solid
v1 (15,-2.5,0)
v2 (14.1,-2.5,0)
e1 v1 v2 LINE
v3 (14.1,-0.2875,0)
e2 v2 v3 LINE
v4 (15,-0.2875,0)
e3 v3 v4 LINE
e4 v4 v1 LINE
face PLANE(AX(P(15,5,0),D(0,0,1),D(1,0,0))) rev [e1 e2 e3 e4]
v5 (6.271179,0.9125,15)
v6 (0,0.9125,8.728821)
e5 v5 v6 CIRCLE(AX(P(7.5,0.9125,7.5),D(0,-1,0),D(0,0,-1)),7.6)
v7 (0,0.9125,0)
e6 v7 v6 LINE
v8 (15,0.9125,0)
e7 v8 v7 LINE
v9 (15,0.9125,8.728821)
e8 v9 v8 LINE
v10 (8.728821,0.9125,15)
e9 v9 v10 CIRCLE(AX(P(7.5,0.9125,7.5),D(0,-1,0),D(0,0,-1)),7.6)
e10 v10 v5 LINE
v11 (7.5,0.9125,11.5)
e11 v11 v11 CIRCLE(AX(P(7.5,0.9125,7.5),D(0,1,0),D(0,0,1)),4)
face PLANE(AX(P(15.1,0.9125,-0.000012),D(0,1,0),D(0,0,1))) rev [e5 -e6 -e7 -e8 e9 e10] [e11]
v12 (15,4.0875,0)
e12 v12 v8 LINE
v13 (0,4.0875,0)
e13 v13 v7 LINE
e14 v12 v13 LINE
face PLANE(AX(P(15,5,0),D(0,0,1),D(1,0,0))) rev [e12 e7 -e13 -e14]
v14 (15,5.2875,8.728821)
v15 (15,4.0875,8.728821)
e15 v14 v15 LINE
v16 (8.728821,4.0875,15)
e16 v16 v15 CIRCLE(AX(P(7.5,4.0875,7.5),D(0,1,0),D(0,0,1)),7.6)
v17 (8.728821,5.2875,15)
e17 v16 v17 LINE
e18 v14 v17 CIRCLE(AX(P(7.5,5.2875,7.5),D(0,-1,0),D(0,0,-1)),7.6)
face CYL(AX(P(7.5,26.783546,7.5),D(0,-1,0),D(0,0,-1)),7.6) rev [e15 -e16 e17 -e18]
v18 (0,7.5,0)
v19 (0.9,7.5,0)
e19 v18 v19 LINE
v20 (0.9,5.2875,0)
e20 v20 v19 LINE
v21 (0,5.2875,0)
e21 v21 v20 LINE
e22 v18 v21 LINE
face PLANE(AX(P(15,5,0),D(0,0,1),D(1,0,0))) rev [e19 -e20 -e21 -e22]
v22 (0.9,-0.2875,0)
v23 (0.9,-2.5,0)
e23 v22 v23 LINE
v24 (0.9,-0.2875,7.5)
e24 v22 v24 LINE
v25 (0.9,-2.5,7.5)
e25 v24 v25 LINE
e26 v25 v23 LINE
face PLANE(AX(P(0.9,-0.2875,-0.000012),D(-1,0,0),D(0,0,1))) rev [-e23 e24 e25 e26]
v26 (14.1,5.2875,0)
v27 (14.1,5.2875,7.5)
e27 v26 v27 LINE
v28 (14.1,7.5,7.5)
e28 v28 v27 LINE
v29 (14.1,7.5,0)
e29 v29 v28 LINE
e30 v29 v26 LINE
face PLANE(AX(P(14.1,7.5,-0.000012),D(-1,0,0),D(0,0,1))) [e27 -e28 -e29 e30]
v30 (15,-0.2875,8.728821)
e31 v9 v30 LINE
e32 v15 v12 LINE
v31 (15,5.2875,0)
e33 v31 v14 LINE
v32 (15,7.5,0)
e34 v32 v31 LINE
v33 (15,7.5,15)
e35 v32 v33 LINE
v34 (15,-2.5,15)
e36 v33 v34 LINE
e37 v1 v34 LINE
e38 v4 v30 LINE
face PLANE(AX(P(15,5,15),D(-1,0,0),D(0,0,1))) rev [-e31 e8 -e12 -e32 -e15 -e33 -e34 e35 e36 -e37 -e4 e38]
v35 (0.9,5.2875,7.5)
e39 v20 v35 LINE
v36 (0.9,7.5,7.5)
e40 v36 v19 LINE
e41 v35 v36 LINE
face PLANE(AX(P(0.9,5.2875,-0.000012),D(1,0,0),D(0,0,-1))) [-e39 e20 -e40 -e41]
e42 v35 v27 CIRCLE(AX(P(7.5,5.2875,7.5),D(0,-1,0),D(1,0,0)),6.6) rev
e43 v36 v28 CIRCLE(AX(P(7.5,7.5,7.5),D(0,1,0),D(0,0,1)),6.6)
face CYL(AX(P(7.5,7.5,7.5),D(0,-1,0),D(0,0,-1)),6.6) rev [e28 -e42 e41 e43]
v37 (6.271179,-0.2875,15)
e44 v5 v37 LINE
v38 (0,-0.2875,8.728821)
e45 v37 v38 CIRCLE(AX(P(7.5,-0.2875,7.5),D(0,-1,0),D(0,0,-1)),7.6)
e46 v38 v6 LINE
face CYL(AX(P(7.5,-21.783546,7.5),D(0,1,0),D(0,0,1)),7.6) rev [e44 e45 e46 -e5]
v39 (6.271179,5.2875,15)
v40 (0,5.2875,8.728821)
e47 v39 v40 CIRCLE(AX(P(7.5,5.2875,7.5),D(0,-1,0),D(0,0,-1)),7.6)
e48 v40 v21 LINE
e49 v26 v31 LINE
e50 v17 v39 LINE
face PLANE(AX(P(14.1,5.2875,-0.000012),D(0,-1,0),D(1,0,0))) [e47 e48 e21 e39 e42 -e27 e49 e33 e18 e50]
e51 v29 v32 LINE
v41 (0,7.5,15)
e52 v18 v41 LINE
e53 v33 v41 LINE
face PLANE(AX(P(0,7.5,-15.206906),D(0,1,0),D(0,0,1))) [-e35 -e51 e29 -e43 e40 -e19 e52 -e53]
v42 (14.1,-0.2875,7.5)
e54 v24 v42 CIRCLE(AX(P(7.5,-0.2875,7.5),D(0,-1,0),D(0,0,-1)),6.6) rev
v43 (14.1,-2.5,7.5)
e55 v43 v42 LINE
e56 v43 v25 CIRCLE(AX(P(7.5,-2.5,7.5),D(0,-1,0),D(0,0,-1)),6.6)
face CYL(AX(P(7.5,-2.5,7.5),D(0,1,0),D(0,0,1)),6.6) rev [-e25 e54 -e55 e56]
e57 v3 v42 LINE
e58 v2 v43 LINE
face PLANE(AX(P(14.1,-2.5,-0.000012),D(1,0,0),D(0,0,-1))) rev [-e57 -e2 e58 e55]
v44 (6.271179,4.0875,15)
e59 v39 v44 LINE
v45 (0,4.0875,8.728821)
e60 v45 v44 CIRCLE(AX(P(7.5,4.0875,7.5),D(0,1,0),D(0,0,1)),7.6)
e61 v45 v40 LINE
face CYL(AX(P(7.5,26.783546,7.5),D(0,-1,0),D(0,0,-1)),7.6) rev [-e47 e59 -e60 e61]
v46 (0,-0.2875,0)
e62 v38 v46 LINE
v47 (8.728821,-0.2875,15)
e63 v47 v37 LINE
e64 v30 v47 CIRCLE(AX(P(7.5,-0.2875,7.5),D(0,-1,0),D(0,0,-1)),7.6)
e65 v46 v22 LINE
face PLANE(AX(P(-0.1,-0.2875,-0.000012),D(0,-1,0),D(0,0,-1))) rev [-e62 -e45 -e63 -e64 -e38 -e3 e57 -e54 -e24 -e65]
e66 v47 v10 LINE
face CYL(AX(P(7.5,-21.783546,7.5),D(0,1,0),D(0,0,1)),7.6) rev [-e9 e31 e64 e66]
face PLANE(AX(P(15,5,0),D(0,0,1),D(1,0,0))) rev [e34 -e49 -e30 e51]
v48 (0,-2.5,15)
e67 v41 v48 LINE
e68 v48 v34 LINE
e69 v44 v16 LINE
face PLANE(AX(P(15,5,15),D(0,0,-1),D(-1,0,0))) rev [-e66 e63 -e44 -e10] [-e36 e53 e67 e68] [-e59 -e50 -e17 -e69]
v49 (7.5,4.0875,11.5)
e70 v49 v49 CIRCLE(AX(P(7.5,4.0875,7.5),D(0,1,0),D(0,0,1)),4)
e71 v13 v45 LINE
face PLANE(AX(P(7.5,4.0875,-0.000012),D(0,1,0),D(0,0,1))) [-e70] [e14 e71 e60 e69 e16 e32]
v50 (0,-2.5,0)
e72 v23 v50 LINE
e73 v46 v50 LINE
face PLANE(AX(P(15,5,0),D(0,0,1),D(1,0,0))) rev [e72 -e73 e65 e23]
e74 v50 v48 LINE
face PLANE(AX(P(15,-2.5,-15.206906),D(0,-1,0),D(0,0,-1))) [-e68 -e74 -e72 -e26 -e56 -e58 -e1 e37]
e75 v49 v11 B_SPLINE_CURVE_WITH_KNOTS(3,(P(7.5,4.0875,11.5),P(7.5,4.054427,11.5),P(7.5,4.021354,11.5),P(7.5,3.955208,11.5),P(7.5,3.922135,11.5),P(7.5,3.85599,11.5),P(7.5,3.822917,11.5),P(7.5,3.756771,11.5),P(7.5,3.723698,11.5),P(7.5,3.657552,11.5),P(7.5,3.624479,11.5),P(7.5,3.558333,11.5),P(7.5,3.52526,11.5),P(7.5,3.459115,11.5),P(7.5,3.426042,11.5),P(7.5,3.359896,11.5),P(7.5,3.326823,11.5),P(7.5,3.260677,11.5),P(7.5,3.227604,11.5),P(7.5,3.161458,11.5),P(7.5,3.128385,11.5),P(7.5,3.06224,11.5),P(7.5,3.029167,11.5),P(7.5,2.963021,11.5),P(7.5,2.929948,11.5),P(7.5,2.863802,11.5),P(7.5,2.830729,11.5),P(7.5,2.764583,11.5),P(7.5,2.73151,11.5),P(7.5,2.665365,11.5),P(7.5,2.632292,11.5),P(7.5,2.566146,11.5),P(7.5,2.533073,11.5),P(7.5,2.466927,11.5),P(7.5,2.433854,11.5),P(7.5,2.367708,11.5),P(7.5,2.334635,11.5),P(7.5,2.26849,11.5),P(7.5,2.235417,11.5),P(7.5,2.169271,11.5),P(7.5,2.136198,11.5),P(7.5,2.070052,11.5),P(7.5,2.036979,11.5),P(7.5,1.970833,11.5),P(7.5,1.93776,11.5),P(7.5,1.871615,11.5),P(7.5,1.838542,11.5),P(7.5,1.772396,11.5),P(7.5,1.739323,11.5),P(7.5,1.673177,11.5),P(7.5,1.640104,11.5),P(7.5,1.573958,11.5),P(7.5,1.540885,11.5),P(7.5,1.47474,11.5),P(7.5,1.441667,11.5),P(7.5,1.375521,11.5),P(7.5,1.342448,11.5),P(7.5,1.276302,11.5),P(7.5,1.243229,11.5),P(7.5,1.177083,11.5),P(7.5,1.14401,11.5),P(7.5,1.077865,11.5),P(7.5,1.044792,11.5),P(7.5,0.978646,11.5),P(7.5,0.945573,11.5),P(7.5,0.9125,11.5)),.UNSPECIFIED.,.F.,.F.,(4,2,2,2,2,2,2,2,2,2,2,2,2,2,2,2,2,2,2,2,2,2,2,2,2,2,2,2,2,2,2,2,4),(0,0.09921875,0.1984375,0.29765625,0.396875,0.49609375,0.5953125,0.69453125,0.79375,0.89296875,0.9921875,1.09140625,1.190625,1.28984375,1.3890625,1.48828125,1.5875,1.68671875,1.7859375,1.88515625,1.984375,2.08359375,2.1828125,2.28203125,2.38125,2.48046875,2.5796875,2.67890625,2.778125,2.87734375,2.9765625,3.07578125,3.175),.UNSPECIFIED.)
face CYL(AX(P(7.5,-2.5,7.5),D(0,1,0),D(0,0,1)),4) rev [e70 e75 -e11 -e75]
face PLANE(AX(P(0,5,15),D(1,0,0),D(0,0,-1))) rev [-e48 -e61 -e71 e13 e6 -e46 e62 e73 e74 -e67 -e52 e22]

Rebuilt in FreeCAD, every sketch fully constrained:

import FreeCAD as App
import Part
import Sketcher
from FreeCAD import Vector


def add_polygon(sketch, points):
    """Adds a closed chain of lines whose ends are joined by coincident constraints."""
    first, n = sketch.GeometryCount, len(points)
    for a, b in zip(points, points[1:] + points[:1]):
        sketch.addGeometry(Part.LineSegment(App.Vector(*a, 0), App.Vector(*b, 0)), False)
    for i in range(n):
        sketch.addConstraint(Sketcher.Constraint("Coincident", first + i, 2, first + (i + 1) % n, 1))

doc = App.newDocument("Part")
body = doc.addObject("PartDesign::Body", "Body")

sketch1 = body.newObject("Sketcher::SketchObject", "Sketch")
sketch1.AttachmentSupport = (doc.getObject("XZ_Plane"), [""])
sketch1.MapMode = "FlatFace"
add_polygon(sketch1, [(0, 0), (0, 15), (15, 15), (15, 0)])
sketch1.addConstraint([
    Sketcher.Constraint("Vertical", 0),
    Sketcher.Constraint("Horizontal", 1),
    Sketcher.Constraint("Vertical", 2),
    Sketcher.Constraint("Horizontal", 3),
    Sketcher.Constraint("Coincident", 3, 2, -1, 1),
    Sketcher.Constraint("Equal", 3, 0),
    Sketcher.Constraint("DistanceX", 1, 1, 1, 2, 15.0),
])
pad1 = body.newObject("PartDesign::Pad", "Pad")
pad1.Profile = sketch1
pad1.Length = 5
pad1.Reversed = True

sketch2 = body.newObject("Sketcher::SketchObject", "Sketch001")
sketch2.AttachmentSupport = (doc.getObject("XY_Plane"), [""])
sketch2.MapMode = "FlatFace"
sketch2.AttachmentOffset = App.Placement(Vector(0, 0, 15), App.Rotation())
add_polygon(sketch2, [(0, 7.5), (0, 5), (15, 5), (15, 7.5)])
add_polygon(sketch2, [(0, 0), (0, -2.5), (15, -2.5), (15, 0)])
sketch2.addConstraint([
    Sketcher.Constraint("Vertical", 0),
    Sketcher.Constraint("Horizontal", 1),
    Sketcher.Constraint("Vertical", 2),
    Sketcher.Constraint("Horizontal", 3),
    Sketcher.Constraint("Vertical", 4),
    Sketcher.Constraint("Horizontal", 5),
    Sketcher.Constraint("Vertical", 6),
    Sketcher.Constraint("Horizontal", 7),
    Sketcher.Constraint("Coincident", 7, 2, -1, 1),
    Sketcher.Constraint("PointOnObject", 0, 2, -2),
    Sketcher.Constraint("Vertical", 2, 2, 5, 2),
    Sketcher.Constraint("Equal", 2, 4),
    Sketcher.Constraint("DistanceX", 1, 1, 1, 2, 15.0),
    Sketcher.Constraint("DistanceY", 0, 2, 0, 1, 2.5),
    Sketcher.Constraint("DistanceY", -1, 1, 0, 2, 5.0),
])
pad2 = body.newObject("PartDesign::Pad", "Pad001")
pad2.Profile = sketch2
pad2.Length = 15
pad2.Reversed = True

sketch3 = body.newObject("Sketcher::SketchObject", "Sketch002")
sketch3.AttachmentSupport = (doc.getObject("XY_Plane"), [""])
sketch3.MapMode = "FlatFace"
sketch3.AttachmentOffset = App.Placement(Vector(0, 0, 7.5), App.Rotation())
add_polygon(sketch3, [(14.1, 7.5), (14.1, 5.3), (15.1, 5.3), (15.1, 4.1), (-0.1, 4.1), (-0.1, 5.3), (0.9, 5.3), (0.9, 7.5)])
sketch3.addConstraint([
    Sketcher.Constraint("Vertical", 0),
    Sketcher.Constraint("Horizontal", 1),
    Sketcher.Constraint("Vertical", 2),
    Sketcher.Constraint("Horizontal", 3),
    Sketcher.Constraint("Vertical", 4),
    Sketcher.Constraint("Horizontal", 5),
    Sketcher.Constraint("Vertical", 6),
    Sketcher.Constraint("Horizontal", 7),
    Sketcher.Constraint("Horizontal", 1, 2, 4, 2),
    Sketcher.Constraint("Equal", 1, 5),
    Sketcher.Constraint("DistanceX", 1, 1, 1, 2, 1.0),
    Sketcher.Constraint("DistanceX", 3, 2, 3, 1, 15.2),
    Sketcher.Constraint("DistanceY", 2, 2, 2, 1, 1.2),
    Sketcher.Constraint("DistanceX", -1, 1, 0, 2, 14.1),
    Sketcher.Constraint("DistanceY", -1, 1, 6, 2, 7.5),
    Sketcher.Constraint("DistanceY", 0, 2, 0, 1, 2.2125),
])
pocket1 = body.newObject("PartDesign::Pocket", "Pocket")
pocket1.Profile = sketch3
pocket1.Length = 31

sketch4 = body.newObject("Sketcher::SketchObject", "Sketch003")
sketch4.AttachmentSupport = (doc.getObject("XZ_Plane"), [""])
sketch4.MapMode = "FlatFace"
sketch4.AttachmentOffset = App.Placement(Vector(0, 0, -4.0875), App.Rotation())
sketch4.addGeometry(Part.Circle(Vector(8, 8, 0), Vector(0, 0, 1), 8), False)
sketch4.addConstraint([
    Sketcher.Constraint("Diameter", 0, 15.2),
    Sketcher.Constraint("DistanceX", -1, 1, 0, 3, 7.5),
    Sketcher.Constraint("DistanceY", -1, 1, 0, 3, 7.5),
])
pocket2 = body.newObject("PartDesign::Pocket", "Pocket001")
pocket2.Profile = sketch4
pocket2.Length = 1.2

sketch5 = body.newObject("Sketcher::SketchObject", "Sketch004")
sketch5.AttachmentSupport = (doc.getObject("XZ_Plane"), [""])
sketch5.MapMode = "FlatFace"
sketch5.AttachmentOffset = App.Placement(Vector(0, 0, -4.0875), App.Rotation())
sketch5.addGeometry(Part.Circle(Vector(8, 8, 0), Vector(0, 0, 1), 7), False)
sketch5.addConstraint([
    Sketcher.Constraint("Diameter", 0, 13.2),
    Sketcher.Constraint("DistanceX", -1, 1, 0, 3, 7.5),
    Sketcher.Constraint("DistanceY", -1, 1, 0, 3, 7.5),
])
pocket3 = body.newObject("PartDesign::Pocket", "Pocket002")
pocket3.Profile = sketch5
pocket3.Type = "ThroughAll"
doc.recompute()

datumplane = body.newObject("PartDesign::Plane", "DatumPlane")
datumplane.AttachmentSupport = (doc.getObject("XZ_Plane"), [""])
datumplane.MapMode = "FlatFace"
datumplane.AttachmentOffset = App.Placement(Vector(0, 0, -2.5), App.Rotation())
mirrored = body.newObject("PartDesign::Mirrored", "Mirrored")
mirrored.Originals = [pocket1]
mirrored.MirrorPlane = (datumplane, [""])
body.Tip = mirrored

sketch6 = body.newObject("Sketcher::SketchObject", "Sketch005")
sketch6.AttachmentSupport = (doc.getObject("XZ_Plane"), [""])
sketch6.MapMode = "FlatFace"
sketch6.AttachmentOffset = App.Placement(Vector(0, 0, 0.2875), App.Rotation())
sketch6.addGeometry(Part.Circle(Vector(8, 8, 0), Vector(0, 0, 1), 8), False)
sketch6.addConstraint([
    Sketcher.Constraint("Diameter", 0, 15.2),
    Sketcher.Constraint("DistanceX", -1, 1, 0, 3, 7.5),
    Sketcher.Constraint("DistanceY", -1, 1, 0, 3, 7.5),
])
pocket4 = body.newObject("PartDesign::Pocket", "Pocket003")
pocket4.Profile = sketch6
pocket4.Length = 1.2

sketch7 = body.newObject("Sketcher::SketchObject", "Sketch006")
sketch7.AttachmentSupport = (doc.getObject("XZ_Plane"), [""])
sketch7.MapMode = "FlatFace"
sketch7.AttachmentOffset = App.Placement(Vector(0, 0, -0.9125), App.Rotation())
sketch7.addGeometry(Part.Circle(Vector(8, 8, 0), Vector(0, 0, 1), 7), False)
sketch7.addConstraint([
    Sketcher.Constraint("Diameter", 0, 13.2),
    Sketcher.Constraint("DistanceX", -1, 1, 0, 3, 7.5),
    Sketcher.Constraint("DistanceY", -1, 1, 0, 3, 7.5),
])
pocket5 = body.newObject("PartDesign::Pocket", "Pocket004")
pocket5.Profile = sketch7
pocket5.Type = "ThroughAll"
pocket5.Reversed = True

sketch8 = body.newObject("Sketcher::SketchObject", "Sketch007")
sketch8.AttachmentSupport = (doc.getObject("XZ_Plane"), [""])
sketch8.MapMode = "FlatFace"
sketch8.AttachmentOffset = App.Placement(Vector(0, 0, -4.0875), App.Rotation())
sketch8.addGeometry(Part.Circle(Vector(7.5, 7.5, 0), Vector(0, 0, 1), 4), False)
sketch8.addConstraint([
    Sketcher.Constraint("Diameter", 0, 8.0),
    Sketcher.Constraint("DistanceX", -1, 1, 0, 3, 7.5),
    Sketcher.Constraint("DistanceY", -1, 1, 0, 3, 7.5),
])
pocket6 = body.newObject("PartDesign::Pocket", "Pocket005")
pocket6.Profile = sketch8
pocket6.Type = "ThroughAll"
pocket6.Reversed = True

doc.recompute()
